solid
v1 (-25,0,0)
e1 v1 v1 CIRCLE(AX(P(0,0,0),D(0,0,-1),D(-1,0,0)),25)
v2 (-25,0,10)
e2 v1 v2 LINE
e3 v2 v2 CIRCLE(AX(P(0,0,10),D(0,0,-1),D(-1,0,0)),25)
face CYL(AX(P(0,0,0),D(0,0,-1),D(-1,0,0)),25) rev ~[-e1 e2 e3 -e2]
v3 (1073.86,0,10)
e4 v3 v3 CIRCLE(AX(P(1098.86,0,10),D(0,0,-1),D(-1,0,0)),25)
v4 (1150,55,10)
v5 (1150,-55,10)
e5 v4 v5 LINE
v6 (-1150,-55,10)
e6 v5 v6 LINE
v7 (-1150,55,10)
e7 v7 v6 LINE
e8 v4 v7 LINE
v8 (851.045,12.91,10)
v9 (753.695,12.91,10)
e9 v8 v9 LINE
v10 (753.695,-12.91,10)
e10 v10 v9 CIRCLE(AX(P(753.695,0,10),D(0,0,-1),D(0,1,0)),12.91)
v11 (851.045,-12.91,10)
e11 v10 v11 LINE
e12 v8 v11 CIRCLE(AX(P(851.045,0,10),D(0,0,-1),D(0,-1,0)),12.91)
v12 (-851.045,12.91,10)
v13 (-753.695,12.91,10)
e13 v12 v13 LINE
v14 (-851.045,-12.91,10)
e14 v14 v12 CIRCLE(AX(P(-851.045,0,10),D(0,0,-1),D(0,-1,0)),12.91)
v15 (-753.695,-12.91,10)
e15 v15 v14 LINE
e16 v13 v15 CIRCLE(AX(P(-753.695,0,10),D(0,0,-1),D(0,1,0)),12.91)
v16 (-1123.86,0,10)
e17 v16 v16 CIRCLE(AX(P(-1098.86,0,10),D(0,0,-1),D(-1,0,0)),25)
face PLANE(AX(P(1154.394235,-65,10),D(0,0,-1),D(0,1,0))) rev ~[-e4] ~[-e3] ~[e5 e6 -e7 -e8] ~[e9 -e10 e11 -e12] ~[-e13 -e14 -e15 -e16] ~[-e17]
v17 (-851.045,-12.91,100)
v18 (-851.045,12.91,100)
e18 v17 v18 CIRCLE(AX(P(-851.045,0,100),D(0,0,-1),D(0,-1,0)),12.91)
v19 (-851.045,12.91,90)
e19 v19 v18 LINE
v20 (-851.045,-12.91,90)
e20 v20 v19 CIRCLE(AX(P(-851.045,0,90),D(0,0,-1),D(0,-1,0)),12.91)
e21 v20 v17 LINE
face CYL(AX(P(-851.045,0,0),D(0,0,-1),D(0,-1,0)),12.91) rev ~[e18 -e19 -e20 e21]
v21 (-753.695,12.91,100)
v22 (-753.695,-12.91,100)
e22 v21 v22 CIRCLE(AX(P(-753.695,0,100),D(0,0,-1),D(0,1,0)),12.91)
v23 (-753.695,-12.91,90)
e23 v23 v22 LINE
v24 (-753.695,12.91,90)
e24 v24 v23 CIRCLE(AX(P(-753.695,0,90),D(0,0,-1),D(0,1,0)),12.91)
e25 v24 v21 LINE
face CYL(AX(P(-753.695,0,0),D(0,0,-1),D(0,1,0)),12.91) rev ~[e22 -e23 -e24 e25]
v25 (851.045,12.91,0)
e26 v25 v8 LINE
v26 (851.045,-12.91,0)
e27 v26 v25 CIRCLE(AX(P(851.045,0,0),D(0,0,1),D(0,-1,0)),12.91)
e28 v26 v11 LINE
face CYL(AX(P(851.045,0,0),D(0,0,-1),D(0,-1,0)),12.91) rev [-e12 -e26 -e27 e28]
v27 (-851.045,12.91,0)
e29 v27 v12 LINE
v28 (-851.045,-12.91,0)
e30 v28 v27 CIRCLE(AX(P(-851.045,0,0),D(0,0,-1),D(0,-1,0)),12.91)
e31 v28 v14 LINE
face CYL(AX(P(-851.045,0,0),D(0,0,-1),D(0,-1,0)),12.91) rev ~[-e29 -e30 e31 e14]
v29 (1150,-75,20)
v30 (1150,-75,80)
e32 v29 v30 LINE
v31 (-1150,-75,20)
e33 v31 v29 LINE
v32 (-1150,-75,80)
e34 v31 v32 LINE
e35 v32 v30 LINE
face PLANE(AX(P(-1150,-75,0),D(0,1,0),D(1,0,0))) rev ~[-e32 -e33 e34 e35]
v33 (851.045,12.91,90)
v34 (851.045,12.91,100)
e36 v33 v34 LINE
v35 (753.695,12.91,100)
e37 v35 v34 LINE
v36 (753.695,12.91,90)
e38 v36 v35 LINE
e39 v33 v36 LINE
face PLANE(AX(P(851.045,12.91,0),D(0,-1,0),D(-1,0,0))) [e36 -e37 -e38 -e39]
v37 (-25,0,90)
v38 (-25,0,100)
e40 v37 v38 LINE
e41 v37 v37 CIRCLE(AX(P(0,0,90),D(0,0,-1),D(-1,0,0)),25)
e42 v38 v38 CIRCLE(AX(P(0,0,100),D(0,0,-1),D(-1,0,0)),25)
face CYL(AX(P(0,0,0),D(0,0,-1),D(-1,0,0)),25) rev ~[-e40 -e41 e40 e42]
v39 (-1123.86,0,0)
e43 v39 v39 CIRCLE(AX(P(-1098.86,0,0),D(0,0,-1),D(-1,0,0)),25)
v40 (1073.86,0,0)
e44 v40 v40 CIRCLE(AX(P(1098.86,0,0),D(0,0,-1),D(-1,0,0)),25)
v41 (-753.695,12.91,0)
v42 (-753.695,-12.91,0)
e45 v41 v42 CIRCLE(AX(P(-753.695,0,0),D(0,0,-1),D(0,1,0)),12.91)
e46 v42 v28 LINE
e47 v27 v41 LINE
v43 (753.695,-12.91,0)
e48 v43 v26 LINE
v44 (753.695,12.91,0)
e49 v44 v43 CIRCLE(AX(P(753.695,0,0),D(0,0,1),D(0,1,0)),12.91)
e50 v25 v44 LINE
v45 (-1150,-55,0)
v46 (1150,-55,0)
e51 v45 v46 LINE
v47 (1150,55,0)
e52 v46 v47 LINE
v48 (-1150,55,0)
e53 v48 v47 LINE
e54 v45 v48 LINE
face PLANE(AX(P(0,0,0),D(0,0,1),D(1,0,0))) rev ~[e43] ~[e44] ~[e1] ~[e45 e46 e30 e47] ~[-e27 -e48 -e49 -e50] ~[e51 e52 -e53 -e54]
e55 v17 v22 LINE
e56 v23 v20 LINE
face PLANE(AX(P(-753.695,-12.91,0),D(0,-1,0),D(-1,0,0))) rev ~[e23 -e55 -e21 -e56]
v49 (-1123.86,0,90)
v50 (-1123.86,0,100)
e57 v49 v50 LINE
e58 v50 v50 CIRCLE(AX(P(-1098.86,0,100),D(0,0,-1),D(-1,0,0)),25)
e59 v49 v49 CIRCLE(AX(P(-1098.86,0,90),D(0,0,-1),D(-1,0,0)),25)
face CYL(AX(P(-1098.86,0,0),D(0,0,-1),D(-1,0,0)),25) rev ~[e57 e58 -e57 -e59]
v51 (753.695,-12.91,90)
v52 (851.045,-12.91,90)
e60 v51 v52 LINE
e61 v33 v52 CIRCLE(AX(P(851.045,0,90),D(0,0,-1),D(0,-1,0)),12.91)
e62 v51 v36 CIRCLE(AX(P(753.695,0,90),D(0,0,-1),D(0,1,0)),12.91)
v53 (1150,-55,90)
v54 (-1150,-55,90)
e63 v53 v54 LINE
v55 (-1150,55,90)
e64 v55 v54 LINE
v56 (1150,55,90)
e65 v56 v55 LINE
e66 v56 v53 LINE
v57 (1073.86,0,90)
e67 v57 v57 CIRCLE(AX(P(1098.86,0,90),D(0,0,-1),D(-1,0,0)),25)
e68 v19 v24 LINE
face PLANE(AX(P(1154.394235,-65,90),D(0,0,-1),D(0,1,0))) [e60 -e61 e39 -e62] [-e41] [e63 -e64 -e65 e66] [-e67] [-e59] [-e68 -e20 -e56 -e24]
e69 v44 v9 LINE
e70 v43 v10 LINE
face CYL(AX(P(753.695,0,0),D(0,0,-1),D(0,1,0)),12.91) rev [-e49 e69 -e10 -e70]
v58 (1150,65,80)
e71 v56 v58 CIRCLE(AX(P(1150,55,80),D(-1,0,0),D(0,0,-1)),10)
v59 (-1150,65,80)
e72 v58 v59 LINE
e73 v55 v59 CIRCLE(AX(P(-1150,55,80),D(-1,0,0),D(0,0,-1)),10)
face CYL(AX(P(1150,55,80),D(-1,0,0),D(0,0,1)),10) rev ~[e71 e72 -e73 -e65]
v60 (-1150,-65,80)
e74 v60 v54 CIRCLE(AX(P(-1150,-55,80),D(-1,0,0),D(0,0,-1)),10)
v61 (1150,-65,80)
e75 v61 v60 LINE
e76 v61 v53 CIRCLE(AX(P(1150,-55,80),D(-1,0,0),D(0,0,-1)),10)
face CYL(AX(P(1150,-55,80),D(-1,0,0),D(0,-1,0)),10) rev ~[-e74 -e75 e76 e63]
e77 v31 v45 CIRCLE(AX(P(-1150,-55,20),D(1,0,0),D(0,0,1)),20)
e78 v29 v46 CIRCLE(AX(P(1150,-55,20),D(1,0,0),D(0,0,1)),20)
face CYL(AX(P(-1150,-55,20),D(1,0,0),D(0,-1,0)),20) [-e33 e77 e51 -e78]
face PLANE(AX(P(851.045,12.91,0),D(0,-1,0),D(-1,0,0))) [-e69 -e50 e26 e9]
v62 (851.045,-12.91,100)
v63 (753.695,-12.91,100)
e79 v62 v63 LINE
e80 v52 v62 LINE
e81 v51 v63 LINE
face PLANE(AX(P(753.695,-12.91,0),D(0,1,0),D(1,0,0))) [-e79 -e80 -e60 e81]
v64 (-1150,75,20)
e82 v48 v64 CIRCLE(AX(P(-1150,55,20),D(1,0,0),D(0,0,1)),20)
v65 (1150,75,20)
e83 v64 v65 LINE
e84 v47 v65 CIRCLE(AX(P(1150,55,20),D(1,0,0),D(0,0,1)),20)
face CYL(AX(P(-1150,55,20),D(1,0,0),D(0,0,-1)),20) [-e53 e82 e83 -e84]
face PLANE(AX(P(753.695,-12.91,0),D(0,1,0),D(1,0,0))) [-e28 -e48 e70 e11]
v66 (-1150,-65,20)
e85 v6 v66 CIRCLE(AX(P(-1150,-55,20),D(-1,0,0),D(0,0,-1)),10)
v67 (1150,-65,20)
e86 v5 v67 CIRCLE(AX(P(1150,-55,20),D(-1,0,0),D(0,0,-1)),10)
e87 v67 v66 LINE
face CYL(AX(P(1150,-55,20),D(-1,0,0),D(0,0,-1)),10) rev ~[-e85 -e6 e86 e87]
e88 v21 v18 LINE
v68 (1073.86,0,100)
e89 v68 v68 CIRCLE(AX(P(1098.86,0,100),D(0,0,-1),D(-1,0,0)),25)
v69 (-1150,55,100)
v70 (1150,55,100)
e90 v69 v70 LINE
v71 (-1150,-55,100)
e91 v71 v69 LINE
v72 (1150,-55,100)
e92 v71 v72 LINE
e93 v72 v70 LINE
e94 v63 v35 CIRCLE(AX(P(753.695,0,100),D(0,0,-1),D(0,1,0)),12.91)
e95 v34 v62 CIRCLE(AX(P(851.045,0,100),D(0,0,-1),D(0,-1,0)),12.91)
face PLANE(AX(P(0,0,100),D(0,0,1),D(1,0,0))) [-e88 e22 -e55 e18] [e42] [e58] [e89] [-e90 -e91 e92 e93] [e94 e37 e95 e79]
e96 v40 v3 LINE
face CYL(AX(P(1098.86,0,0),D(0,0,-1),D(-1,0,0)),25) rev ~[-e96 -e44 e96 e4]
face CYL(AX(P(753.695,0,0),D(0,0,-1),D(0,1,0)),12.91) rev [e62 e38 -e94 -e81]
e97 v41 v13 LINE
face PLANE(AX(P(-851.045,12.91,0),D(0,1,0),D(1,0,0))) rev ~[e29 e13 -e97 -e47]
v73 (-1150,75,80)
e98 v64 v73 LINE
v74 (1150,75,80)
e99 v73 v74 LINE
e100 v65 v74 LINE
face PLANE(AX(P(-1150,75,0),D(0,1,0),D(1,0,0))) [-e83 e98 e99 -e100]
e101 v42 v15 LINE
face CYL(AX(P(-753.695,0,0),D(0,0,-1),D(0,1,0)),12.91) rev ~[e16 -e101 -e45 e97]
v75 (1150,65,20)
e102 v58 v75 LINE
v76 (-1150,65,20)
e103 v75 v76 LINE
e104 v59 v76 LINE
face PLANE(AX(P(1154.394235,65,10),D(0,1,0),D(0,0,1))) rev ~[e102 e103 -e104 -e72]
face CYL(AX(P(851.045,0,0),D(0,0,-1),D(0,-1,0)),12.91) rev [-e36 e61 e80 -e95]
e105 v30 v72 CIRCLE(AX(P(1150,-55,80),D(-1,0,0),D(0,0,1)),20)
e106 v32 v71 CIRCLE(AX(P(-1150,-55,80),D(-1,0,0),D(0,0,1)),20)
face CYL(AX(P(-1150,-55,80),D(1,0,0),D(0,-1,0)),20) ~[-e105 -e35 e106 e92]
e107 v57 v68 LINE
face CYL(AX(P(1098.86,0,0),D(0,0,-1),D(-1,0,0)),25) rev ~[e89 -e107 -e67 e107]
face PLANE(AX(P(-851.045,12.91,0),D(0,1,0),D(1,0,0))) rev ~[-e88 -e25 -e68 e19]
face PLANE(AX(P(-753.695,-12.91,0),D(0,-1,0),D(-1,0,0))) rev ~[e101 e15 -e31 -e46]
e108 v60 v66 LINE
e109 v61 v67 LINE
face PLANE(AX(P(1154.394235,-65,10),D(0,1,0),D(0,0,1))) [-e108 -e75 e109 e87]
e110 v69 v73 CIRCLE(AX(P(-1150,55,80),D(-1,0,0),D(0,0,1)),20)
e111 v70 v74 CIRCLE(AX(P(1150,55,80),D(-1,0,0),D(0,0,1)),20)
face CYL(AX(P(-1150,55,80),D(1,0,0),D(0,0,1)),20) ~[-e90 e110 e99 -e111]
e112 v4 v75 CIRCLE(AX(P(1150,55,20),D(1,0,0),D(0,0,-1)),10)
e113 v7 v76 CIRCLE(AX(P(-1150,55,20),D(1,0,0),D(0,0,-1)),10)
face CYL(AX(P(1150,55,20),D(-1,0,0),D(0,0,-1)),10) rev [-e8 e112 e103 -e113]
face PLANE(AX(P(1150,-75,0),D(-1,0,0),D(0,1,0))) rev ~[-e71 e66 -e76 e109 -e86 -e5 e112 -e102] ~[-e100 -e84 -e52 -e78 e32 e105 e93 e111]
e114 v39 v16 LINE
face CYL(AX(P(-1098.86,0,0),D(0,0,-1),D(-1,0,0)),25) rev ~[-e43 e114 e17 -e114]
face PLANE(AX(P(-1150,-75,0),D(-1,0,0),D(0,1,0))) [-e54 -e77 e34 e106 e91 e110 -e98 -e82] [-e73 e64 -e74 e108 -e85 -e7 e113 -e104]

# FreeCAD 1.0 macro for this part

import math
import FreeCAD as App
import Part
import Sketcher
from FreeCAD import Vector
Q = App.Units.Quantity


def edges_at(feature, points):
    """Names of the edges that pass closest to the given points."""
    edges = feature.Shape.Edges
    near = lambda p: min(range(len(edges)), key=lambda i: edges[i].distToShape(Part.Vertex(*p))[0])
    return sorted({f"Edge{near(p) + 1}" for p in points})

doc = App.newDocument("Part")
body = doc.addObject("PartDesign::Body", "Body")

sketch1 = body.newObject("Sketcher::SketchObject", "Sketch")
sketch1.AttachmentSupport = (doc.getObject("XY_Plane"), [""])
sketch1.MapMode = "FlatFace"
sketch1.addGeometry([
    Part.LineSegment(Vector(-1150, 75, 0), Vector(-1150, -75, 0)),
    Part.LineSegment(Vector(-1150, -75, 0), Vector(1150, -75, 0)),
    Part.LineSegment(Vector(1150, -75, 0), Vector(1150, 75, 0)),
    Part.LineSegment(Vector(1150, 75, 0), Vector(-1150, 75, 0)),
], False)
sketch1.addConstraint([
    Sketcher.Constraint("Coincident", 0, 2, 1, 1),
    Sketcher.Constraint("Coincident", 1, 2, 2, 1),
    Sketcher.Constraint("Coincident", 2, 2, 3, 1),
    Sketcher.Constraint("Coincident", 3, 2, 0, 1),
    Sketcher.Constraint("Vertical", 0),
    Sketcher.Constraint("Horizontal", 1),
    Sketcher.Constraint("Vertical", 2),
    Sketcher.Constraint("Horizontal", 3),
    Sketcher.Constraint("Symmetric", 0, 2, 2, 2, -1, 1),
    Sketcher.Constraint("DistanceX", 1, 1, 1, 2, Q("2300 mm")),
    Sketcher.Constraint("DistanceY", 0, 2, 0, 1, Q("150 mm")),
])
pad1 = body.newObject("PartDesign::Pad", "Pad")
pad1.Profile = sketch1
pad1.Length = 100

sketch2 = body.newObject("Sketcher::SketchObject", "Sketch001")
sketch2.AttachmentSupport = (doc.getObject("YZ_Plane"), [""])
sketch2.MapMode = "FlatFace"
sketch2.AttachmentOffset = App.Placement(Vector(0, 0, -1150), App.Rotation())
sketch2.addGeometry([
    Part.LineSegment(Vector(65, 10, 0), Vector(-65, 10, 0)),
    Part.LineSegment(Vector(-65, 10, 0), Vector(-65, 90, 0)),
    Part.LineSegment(Vector(-65, 90, 0), Vector(65, 90, 0)),
    Part.LineSegment(Vector(65, 90, 0), Vector(65, 10, 0)),
], False)
sketch2.addConstraint([
    Sketcher.Constraint("Coincident", 0, 2, 1, 1),
    Sketcher.Constraint("Coincident", 1, 2, 2, 1),
    Sketcher.Constraint("Coincident", 2, 2, 3, 1),
    Sketcher.Constraint("Coincident", 3, 2, 0, 1),
    Sketcher.Constraint("Horizontal", 0),
    Sketcher.Constraint("Vertical", 1),
    Sketcher.Constraint("Horizontal", 2),
    Sketcher.Constraint("Vertical", 3),
    Sketcher.Constraint("DistanceX", 0, 2, 0, 1, Q("130 mm")),
    Sketcher.Constraint("DistanceY", 1, 1, 1, 2, Q("80 mm")),
    Sketcher.Constraint("DistanceX", 0, 2, -1, 1, Q("65 mm")),
    Sketcher.Constraint("DistanceY", -1, 1, 0, 2, Q("10 mm")),
])
pocket1 = body.newObject("PartDesign::Pocket", "Pocket")
pocket1.Profile = sketch2
pocket1.Type = "ThroughAll"
pocket1.Midplane = True
doc.recompute()

fillet = body.newObject("PartDesign::Fillet", "Fillet")
fillet.Base = (pocket1, edges_at(pocket1, [
    (0, -65, 90),
    (0, -65, 10),
    (0, 65, 10),
    (0, 65, 90),
]))
fillet.Radius = 10
doc.recompute()

fillet2 = body.newObject("PartDesign::Fillet", "Fillet001")
fillet2.Base = (fillet, edges_at(fillet, [
    (0, 75, 100),
    (0, 75, 0),
    (0, -75, 0),
    (0, -75, 100),
]))
fillet2.Radius = 20

sketch3 = body.newObject("Sketcher::SketchObject", "Sketch002")
sketch3.AttachmentSupport = (doc.getObject("XY_Plane"), [""])
sketch3.MapMode = "FlatFace"
sketch3.addGeometry([
    Part.Circle(Vector(0, 0, 0), Vector(0, 0, 1), 25),
    Part.Circle(Vector(1098.86, 0, 0), Vector(0, 0, 1), 25),
    Part.Circle(Vector(-1098.86, 0, 0), Vector(0, 0, 1), 25),
], False)
sketch3.addConstraint([
    Sketcher.Constraint("Coincident", 0, 3, -1, 1),
    Sketcher.Constraint("Equal", 0, 1),
    Sketcher.Constraint("Equal", 1, 2),
    Sketcher.Constraint("Symmetric", 1, 3, 2, 3, -1, 1),
    Sketcher.Constraint("PointOnObject", 1, 3, -1),
    Sketcher.Constraint("Diameter", 0, Q("50 mm")),
    Sketcher.Constraint("DistanceX", -1, 1, 1, 3, Q("1098.86 mm")),
])
pocket2 = body.newObject("PartDesign::Pocket", "Pocket001")
pocket2.Profile = sketch3
pocket2.Type = "ThroughAll"
pocket2.Reversed = True

sketch4 = body.newObject("Sketcher::SketchObject", "Sketch003")
sketch4.AttachmentSupport = (doc.getObject("XY_Plane"), [""])
sketch4.MapMode = "FlatFace"
sketch4.addGeometry([
    Part.LineSegment(Vector(753.695, 12.91, 0), Vector(851.045, 12.91, 0)),
    Part.ArcOfCircle(Part.Circle(Vector(851.045, 0, 0), Vector(0, 0, 1), 12.91), math.radians(-90), math.radians(90)),
    Part.LineSegment(Vector(851.045, -12.91, 0), Vector(753.695, -12.91, 0)),
    Part.ArcOfCircle(Part.Circle(Vector(753.695, 0, 0), Vector(0, 0, 1), 12.91), math.radians(90), math.radians(270)),
    Part.LineSegment(Vector(-851.045, 12.91, 0), Vector(-753.695, 12.91, 0)),
    Part.ArcOfCircle(Part.Circle(Vector(-753.695, 0, 0), Vector(0, 0, 1), 12.91), math.radians(-90), math.radians(90)),
    Part.LineSegment(Vector(-753.695, -12.91, 0), Vector(-851.045, -12.91, 0)),
    Part.ArcOfCircle(Part.Circle(Vector(-851.045, 0, 0), Vector(0, 0, 1), 12.91), math.radians(90), math.radians(270)),
], False)
sketch4.addConstraint([
    Sketcher.Constraint("Tangent", 0, 2, 1, 2),
    Sketcher.Constraint("Tangent", 1, 1, 2, 1),
    Sketcher.Constraint("Tangent", 2, 2, 3, 2),
    Sketcher.Constraint("Tangent", 3, 1, 0, 1),
    Sketcher.Constraint("Tangent", 4, 2, 5, 2),
    Sketcher.Constraint("Tangent", 5, 1, 6, 1),
    Sketcher.Constraint("Tangent", 6, 2, 7, 2),
    Sketcher.Constraint("Tangent", 7, 1, 4, 1),
    Sketcher.Constraint("Horizontal", 0),
    Sketcher.Constraint("Horizontal", 2),
    Sketcher.Constraint("Horizontal", 4),
    Sketcher.Constraint("Horizontal", 6),
    Sketcher.Constraint("Equal", 3, 5),
    Sketcher.Constraint("Symmetric", 3, 3, 5, 3, -1, 1),
    Sketcher.Constraint("Symmetric", 1, 3, 7, 3, -2),
    Sketcher.Constraint("Radius", 1, Q("12.91 mm")),
    Sketcher.Constraint("DistanceX", 0, 1, 0, 2, Q("97.35 mm")),
    Sketcher.Constraint("DistanceX", 5, 3, 3, 3, Q("1507.39 mm")),
])
pocket3 = body.newObject("PartDesign::Pocket", "Pocket002")
pocket3.Profile = sketch4
pocket3.Type = "ThroughAll"
pocket3.Reversed = True

doc.recompute()
